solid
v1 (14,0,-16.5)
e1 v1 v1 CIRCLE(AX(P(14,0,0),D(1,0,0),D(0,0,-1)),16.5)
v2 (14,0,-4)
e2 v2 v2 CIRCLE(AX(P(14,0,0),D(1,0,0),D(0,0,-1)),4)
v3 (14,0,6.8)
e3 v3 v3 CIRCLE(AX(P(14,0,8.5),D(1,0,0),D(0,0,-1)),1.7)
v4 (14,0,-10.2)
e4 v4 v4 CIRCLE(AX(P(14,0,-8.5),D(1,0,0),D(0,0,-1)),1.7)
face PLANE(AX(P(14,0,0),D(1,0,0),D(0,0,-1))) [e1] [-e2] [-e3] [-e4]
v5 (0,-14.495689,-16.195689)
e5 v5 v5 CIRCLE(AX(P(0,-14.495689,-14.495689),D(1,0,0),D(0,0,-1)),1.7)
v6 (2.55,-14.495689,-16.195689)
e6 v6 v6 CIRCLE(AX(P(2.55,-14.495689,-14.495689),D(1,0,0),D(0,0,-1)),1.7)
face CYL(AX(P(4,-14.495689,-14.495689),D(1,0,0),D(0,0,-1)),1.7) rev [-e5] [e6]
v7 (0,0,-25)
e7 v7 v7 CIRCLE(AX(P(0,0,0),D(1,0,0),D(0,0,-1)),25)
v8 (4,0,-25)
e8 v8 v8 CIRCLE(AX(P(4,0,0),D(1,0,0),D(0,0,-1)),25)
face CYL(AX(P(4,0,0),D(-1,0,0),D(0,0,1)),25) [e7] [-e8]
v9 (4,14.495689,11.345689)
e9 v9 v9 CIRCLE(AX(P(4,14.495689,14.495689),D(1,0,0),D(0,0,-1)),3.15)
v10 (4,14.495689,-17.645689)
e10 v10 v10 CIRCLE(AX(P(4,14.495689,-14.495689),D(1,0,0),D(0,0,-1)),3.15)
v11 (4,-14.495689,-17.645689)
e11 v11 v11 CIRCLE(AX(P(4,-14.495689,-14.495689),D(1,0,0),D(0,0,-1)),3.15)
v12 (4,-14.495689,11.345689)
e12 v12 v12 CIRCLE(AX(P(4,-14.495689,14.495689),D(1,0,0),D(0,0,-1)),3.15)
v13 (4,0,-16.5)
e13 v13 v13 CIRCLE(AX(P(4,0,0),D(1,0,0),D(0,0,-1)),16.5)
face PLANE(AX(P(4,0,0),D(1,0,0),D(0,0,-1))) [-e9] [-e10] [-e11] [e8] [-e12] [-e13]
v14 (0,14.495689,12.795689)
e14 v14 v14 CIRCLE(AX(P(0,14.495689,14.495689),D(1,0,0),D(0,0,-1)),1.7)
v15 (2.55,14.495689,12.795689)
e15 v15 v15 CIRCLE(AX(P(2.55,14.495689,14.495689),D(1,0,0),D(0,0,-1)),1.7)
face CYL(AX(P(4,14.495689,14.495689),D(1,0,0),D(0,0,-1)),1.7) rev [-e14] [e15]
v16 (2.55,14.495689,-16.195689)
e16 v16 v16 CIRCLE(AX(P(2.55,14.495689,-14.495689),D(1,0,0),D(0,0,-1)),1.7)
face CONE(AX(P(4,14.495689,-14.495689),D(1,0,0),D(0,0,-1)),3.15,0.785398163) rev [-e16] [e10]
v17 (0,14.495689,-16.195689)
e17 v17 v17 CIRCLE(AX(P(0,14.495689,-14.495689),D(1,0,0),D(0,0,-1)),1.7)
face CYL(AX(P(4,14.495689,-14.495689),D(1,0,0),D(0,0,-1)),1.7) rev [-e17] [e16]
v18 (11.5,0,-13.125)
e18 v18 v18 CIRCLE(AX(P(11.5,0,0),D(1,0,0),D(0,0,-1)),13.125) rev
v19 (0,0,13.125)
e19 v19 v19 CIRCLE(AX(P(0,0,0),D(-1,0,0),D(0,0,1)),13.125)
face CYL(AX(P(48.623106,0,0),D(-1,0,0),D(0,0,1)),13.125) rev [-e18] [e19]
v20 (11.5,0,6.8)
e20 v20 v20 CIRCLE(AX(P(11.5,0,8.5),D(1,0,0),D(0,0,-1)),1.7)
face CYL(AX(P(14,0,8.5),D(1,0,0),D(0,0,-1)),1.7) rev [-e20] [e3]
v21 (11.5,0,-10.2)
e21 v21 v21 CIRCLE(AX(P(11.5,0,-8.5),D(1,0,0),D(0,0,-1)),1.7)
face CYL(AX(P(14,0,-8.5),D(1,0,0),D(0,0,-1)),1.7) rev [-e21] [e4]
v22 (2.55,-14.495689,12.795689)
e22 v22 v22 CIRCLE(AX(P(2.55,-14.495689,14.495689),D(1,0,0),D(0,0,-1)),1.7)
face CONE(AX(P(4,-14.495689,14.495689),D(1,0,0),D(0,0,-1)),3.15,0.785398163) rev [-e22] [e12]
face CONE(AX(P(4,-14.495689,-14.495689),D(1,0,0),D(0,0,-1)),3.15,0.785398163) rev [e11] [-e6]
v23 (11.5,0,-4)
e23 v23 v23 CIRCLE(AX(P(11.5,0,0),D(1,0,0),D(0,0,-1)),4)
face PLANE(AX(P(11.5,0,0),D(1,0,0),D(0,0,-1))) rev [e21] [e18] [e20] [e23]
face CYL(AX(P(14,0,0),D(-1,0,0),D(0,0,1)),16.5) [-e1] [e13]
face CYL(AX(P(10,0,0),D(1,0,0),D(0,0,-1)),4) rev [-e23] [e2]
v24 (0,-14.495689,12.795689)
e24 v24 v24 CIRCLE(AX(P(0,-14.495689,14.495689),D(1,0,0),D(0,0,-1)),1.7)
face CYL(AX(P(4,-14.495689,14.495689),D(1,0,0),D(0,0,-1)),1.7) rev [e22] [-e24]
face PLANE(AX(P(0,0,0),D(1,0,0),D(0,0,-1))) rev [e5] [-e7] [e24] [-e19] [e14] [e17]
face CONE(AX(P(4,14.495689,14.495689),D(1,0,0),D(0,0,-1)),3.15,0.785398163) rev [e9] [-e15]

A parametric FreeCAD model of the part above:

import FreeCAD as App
import Part
import Sketcher

doc = App.newDocument("Part")
body = doc.addObject("PartDesign::Body", "Body")

# Sketch on YZ plane
sketch1 = body.newObject("Sketcher::SketchObject", "Sketch")
sketch1.AttachmentSupport = (doc.getObject("YZ_Plane"), [""])
sketch1.MapMode = "FlatFace"
sketch1.addGeometry(Part.Circle(App.Vector(0, 0, 0), App.Vector(0, 0, 1), 25), False)
sketch1.addConstraint(Sketcher.Constraint("Coincident", 0, 3, -1, 1))
sketch1.addConstraint(Sketcher.Constraint("Diameter", 0, 50.0))
pad1 = body.newObject("PartDesign::Pad", "Pad")
pad1.Profile = sketch1
pad1.Length = 4

# Sketch on YZ plane
sketch2 = body.newObject("Sketcher::SketchObject", "Sketch001")
sketch2.AttachmentSupport = (doc.getObject("YZ_Plane"), [""])
sketch2.MapMode = "FlatFace"
sketch2.AttachmentOffset = App.Placement(App.Vector(0, 0, 4), App.Rotation())
sketch2.addGeometry(Part.Circle(App.Vector(0, 0, 0), App.Vector(0, 0, 1), 16), False)
sketch2.addConstraint(Sketcher.Constraint("Coincident", 0, 3, -1, 1))
sketch2.addConstraint(Sketcher.Constraint("Diameter", 0, 33.0))
pad2 = body.newObject("PartDesign::Pad", "Pad001")
pad2.Profile = sketch2
pad2.Length = 10

# Sketch on YZ plane
sketch3 = body.newObject("Sketcher::SketchObject", "Sketch002")
sketch3.AttachmentSupport = (doc.getObject("YZ_Plane"), [""])
sketch3.MapMode = "FlatFace"
sketch3.addGeometry(Part.Circle(App.Vector(0, 0, 0), App.Vector(0, 0, 1), 12), False)
sketch3.addConstraint(Sketcher.Constraint("Coincident", 0, 3, -1, 1))
sketch3.addConstraint(Sketcher.Constraint("Diameter", 0, 25.0))
pocket1 = body.newObject("PartDesign::Pocket", "Pocket")
pocket1.Profile = sketch3
pocket1.Length = 11.5
pocket1.Reversed = True

# Sketch on YZ plane
sketch4 = body.newObject("Sketcher::SketchObject", "Sketch003")
sketch4.AttachmentSupport = (doc.getObject("YZ_Plane"), [""])
sketch4.MapMode = "FlatFace"
sketch4.AttachmentOffset = App.Placement(App.Vector(0, 0, 14), App.Rotation())
sketch4.addGeometry(Part.Circle(App.Vector(0, 0, 0), App.Vector(0, 0, 1), 4), False)
sketch4.addConstraint(Sketcher.Constraint("Coincident", 0, 3, -1, 1))
sketch4.addConstraint(Sketcher.Constraint("Diameter", 0, 8.0))
pocket2 = body.newObject("PartDesign::Pocket", "Pocket001")
pocket2.Profile = sketch4
pocket2.Length = 4

# Sketch on YZ plane
sketch5 = body.newObject("Sketcher::SketchObject", "Sketch004")
sketch5.AttachmentSupport = (doc.getObject("YZ_Plane"), [""])
sketch5.MapMode = "FlatFace"
sketch5.AttachmentOffset = App.Placement(App.Vector(0, 0, 14), App.Rotation())
sketch5.addGeometry(Part.Circle(App.Vector(0, -8.5, 0), App.Vector(0, 0, 1), 1.7), False)
sketch5.addGeometry(Part.Circle(App.Vector(0, 8.5, 0), App.Vector(0, 0, 1), 1.7), False)
sketch5.addConstraint(Sketcher.Constraint("Equal", 0, 1))
sketch5.addConstraint(Sketcher.Constraint("Symmetric", 0, 3, 1, 3, -1, 1))
sketch5.addConstraint(Sketcher.Constraint("PointOnObject", 0, 3, -2))
sketch5.addConstraint(Sketcher.Constraint("Diameter", 0, 3.4))
sketch5.addConstraint(Sketcher.Constraint("DistanceY", 0, 3, 1, 3, 17.0))
doc.recompute()
hole = body.newObject("PartDesign::Hole", "Hole")
hole.Profile = sketch5
hole.ThreadType = "None"
hole.Diameter = 3.4
hole.DepthType = "Dimension"
hole.Depth = 10
hole.DrillPoint = "Flat"

# Sketch on YZ plane
sketch6 = body.newObject("Sketcher::SketchObject", "Sketch005")
sketch6.AttachmentSupport = (doc.getObject("YZ_Plane"), [""])
sketch6.MapMode = "FlatFace"
sketch6.AttachmentOffset = App.Placement(App.Vector(0, 0, 4), App.Rotation())
sketch6.addGeometry(Part.Circle(App.Vector(-14.5, 14.5, 0), App.Vector(0, 0, 1), 1.7), False)
sketch6.addConstraint(Sketcher.Constraint("Diameter", 0, 3.4))
sketch6.addConstraint(Sketcher.Constraint("DistanceX", 0, 3, -1, 1, 14.495689))
sketch6.addConstraint(Sketcher.Constraint("DistanceY", -1, 1, 0, 3, 14.495689))
doc.recompute()
hole2 = body.newObject("PartDesign::Hole", "Hole001")
hole2.Profile = sketch6
hole2.ThreadType = "None"
hole2.Diameter = 3.4
hole2.DepthType = "ThroughAll"
hole2.HoleCutType = "Countersink"
hole2.HoleCutDiameter = 6.3
hole2.HoleCutCountersinkAngle = 90
doc.recompute()

polarpattern = body.newObject("PartDesign::PolarPattern", "PolarPattern")
polarpattern.Originals = [hole2]
polarpattern.Axis = (doc.getObject("X_Axis"), [""])
polarpattern.Angle = 360
polarpattern.Occurrences = 4
body.Tip = polarpattern

# Sketch on YZ plane
sketch7 = body.newObject("Sketcher::SketchObject", "Sketch006")
sketch7.AttachmentSupport = (doc.getObject("YZ_Plane"), [""])
sketch7.MapMode = "FlatFace"
sketch7.addGeometry(Part.Circle(App.Vector(0, 0, 0), App.Vector(0, 0, 1), 13), False)
sketch7.addConstraint(Sketcher.Constraint("Coincident", 0, 3, -1, 1))
sketch7.addConstraint(Sketcher.Constraint("Diameter", 0, 26.25))
pocket3 = body.newObject("PartDesign::Pocket", "Pocket002")
pocket3.Profile = sketch7
pocket3.Length = 11.5
pocket3.Reversed = True

doc.recompute()
